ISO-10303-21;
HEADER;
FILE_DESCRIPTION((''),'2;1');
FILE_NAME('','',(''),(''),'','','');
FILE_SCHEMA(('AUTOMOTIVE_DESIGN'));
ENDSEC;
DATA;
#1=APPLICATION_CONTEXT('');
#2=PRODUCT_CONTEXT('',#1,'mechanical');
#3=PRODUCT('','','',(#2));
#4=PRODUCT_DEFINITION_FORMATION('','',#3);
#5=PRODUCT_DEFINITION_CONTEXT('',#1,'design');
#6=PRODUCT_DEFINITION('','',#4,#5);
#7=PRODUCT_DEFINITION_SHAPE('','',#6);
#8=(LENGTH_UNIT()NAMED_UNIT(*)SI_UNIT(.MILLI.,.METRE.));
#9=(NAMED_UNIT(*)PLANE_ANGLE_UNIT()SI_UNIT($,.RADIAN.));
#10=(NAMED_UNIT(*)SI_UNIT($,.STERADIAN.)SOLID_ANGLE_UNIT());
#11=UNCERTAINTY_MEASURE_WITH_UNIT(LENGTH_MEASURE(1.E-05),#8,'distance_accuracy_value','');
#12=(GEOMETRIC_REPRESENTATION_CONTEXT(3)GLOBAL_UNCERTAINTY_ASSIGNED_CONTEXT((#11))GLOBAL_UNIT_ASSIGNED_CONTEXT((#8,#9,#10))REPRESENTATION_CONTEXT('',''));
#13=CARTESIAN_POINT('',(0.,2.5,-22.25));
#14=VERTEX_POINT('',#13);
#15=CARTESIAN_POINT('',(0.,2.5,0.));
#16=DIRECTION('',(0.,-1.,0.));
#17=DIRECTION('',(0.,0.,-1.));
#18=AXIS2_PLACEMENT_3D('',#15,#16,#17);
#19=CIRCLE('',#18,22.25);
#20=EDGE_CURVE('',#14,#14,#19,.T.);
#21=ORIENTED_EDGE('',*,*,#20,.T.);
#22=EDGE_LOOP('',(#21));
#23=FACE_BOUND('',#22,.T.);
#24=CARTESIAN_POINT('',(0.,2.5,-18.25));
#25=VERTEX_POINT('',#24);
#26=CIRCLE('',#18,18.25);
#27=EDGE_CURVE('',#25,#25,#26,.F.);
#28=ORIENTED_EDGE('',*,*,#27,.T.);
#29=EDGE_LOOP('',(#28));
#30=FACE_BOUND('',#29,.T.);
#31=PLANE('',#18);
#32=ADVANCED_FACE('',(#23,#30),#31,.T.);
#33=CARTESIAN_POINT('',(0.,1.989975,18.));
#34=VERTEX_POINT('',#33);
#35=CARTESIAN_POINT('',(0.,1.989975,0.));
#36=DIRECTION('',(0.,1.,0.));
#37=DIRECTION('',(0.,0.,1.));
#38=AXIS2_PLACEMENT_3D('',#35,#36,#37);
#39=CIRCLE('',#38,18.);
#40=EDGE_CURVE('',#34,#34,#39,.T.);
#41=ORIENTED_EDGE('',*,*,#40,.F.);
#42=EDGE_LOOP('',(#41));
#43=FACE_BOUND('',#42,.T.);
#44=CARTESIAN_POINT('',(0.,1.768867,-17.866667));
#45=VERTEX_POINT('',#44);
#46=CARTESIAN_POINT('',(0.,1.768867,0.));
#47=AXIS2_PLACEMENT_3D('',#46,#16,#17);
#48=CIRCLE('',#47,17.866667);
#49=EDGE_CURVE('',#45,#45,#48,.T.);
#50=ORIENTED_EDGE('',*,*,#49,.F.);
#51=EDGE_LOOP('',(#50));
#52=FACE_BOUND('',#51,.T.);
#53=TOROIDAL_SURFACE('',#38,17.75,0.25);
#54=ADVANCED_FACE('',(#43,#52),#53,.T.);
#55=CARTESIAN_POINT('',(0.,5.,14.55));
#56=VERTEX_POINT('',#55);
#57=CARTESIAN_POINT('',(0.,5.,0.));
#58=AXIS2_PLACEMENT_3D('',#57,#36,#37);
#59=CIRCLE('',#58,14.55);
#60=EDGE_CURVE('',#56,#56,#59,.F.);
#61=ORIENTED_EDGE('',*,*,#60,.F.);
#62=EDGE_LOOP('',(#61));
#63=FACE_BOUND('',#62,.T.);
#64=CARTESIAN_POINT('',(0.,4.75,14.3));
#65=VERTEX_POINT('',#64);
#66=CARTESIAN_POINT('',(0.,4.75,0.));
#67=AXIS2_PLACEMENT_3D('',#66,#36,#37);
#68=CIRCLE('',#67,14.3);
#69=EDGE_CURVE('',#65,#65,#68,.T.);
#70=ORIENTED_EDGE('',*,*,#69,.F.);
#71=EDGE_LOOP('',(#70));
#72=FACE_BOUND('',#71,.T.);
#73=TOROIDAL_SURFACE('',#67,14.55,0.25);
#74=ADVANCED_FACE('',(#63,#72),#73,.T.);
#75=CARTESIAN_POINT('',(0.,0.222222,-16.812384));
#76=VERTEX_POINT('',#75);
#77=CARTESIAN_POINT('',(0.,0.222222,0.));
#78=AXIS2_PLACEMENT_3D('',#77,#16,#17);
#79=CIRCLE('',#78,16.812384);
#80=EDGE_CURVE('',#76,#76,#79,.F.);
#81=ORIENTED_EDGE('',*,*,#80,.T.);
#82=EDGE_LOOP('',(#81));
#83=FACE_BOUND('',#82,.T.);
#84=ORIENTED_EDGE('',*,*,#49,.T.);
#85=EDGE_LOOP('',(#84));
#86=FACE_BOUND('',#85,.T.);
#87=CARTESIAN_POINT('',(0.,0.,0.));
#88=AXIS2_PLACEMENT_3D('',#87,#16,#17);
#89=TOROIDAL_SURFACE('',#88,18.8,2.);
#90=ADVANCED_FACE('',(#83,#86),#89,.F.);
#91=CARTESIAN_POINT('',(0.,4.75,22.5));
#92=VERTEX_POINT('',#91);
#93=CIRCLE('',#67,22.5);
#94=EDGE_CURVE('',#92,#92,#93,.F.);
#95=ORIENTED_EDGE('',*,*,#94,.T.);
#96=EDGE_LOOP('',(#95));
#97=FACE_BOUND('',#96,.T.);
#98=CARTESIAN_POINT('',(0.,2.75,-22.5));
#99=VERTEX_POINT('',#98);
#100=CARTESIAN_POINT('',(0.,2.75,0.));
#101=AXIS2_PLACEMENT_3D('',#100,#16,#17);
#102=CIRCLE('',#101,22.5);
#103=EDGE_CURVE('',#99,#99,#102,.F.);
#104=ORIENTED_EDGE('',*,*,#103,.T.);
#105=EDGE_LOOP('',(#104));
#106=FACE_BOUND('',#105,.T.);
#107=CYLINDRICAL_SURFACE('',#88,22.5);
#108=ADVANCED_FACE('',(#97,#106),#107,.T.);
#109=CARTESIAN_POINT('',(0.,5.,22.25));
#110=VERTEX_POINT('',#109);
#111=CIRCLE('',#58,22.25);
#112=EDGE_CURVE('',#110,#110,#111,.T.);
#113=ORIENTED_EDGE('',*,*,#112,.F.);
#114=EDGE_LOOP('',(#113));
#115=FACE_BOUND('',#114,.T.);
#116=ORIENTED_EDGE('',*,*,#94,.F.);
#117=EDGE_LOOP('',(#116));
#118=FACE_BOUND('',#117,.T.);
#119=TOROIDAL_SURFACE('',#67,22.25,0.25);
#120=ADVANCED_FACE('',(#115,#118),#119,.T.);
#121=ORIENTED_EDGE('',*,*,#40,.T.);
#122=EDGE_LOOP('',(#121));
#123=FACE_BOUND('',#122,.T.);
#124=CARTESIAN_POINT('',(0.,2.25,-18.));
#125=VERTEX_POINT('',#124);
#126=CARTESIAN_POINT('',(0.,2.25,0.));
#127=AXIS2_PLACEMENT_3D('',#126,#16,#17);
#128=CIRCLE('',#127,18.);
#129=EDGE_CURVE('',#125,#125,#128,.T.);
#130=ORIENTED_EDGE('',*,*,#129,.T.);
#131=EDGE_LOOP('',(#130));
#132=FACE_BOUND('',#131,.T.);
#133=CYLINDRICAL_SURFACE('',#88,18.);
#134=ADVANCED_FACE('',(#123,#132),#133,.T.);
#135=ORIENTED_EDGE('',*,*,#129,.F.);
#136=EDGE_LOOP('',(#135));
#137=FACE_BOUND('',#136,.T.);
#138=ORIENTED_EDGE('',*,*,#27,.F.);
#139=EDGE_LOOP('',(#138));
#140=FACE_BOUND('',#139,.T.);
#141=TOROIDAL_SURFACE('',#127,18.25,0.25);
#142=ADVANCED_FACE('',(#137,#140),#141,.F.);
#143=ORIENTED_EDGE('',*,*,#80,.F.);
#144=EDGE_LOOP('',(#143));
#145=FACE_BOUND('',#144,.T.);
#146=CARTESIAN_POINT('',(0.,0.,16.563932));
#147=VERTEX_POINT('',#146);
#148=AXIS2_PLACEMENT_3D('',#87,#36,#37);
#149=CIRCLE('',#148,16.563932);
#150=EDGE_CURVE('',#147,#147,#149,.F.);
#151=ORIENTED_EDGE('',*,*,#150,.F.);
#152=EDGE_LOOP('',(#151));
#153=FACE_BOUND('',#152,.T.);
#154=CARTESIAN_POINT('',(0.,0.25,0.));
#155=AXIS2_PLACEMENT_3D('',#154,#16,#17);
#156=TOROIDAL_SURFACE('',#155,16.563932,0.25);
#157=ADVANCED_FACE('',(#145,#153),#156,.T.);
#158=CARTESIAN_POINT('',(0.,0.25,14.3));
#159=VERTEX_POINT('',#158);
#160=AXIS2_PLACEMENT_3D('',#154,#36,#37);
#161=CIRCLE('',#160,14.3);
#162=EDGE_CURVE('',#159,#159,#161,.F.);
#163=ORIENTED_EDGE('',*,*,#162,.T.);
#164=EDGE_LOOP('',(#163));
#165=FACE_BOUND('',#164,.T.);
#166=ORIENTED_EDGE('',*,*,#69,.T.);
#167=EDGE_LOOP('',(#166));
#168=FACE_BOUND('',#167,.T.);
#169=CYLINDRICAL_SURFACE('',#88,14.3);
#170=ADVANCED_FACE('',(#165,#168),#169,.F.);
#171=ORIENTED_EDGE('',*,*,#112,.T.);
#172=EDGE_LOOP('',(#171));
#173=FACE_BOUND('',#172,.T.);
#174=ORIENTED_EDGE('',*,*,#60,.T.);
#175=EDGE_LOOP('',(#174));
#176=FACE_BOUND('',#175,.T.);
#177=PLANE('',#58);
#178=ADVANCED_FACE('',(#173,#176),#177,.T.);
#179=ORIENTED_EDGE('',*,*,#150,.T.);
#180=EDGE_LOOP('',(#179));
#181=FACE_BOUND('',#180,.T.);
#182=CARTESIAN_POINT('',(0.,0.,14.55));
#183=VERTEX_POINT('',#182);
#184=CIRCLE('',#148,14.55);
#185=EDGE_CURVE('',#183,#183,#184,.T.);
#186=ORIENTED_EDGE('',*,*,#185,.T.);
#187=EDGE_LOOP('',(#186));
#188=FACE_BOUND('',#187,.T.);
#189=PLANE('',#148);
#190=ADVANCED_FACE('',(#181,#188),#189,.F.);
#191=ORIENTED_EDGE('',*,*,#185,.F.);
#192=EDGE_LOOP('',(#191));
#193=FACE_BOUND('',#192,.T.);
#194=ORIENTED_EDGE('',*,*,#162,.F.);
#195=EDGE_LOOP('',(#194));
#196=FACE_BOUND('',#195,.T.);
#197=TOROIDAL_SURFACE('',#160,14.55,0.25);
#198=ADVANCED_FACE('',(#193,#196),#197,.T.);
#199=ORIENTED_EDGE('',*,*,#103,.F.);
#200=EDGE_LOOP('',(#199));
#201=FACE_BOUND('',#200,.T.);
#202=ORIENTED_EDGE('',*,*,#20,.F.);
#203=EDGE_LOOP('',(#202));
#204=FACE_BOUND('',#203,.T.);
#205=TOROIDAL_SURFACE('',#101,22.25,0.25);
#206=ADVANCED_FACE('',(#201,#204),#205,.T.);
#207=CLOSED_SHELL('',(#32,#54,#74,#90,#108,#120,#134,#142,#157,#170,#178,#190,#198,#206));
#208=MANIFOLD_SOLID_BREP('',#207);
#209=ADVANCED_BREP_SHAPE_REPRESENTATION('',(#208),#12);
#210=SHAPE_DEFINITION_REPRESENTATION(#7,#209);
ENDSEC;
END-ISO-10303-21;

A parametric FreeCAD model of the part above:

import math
import FreeCAD as App
import Part
import Sketcher

V = App.Vector


def edges_at(feature, points):
    """Names of the edges that pass closest to the given points."""
    edges = feature.Shape.Edges
    near = lambda p: min(range(len(edges)), key=lambda i: edges[i].distToShape(Part.Vertex(*p))[0])
    return sorted({f"Edge{near(p) + 1}" for p in points})

doc = App.newDocument("Part")
body = doc.addObject("PartDesign::Body", "Body")

# Sketch on XY plane
sketch1 = body.newObject("Sketcher::SketchObject", "Sketch")
sketch1.AttachmentSupport = (doc.getObject("XY_Plane"), [""])
sketch1.MapMode = "FlatFace"
sketch1.addGeometry(Part.LineSegment(V(14.3, 0, 0), V(16.8, 0, 0)), False)
sketch1.addGeometry(Part.ArcOfCircle(Part.Circle(V(18.8, 0, 0), V(0, 0, 1), 2), math.radians(113.578178), math.radians(180)), False)
sketch1.addGeometry(Part.LineSegment(V(18, 1.83303, 0), V(18, 2.5, 0)), False)
sketch1.addGeometry(Part.LineSegment(V(18, 2.5, 0), V(22.5, 2.5, 0)), False)
sketch1.addGeometry(Part.LineSegment(V(22.5, 2.5, 0), V(22.5, 5, 0)), False)
sketch1.addGeometry(Part.LineSegment(V(22.5, 5, 0), V(14.3, 5, 0)), False)
sketch1.addGeometry(Part.LineSegment(V(14.3, 5, 0), V(14.3, 0, 0)), False)
sketch1.addConstraint(Sketcher.Constraint("Coincident", 0, 2, 1, 2))
sketch1.addConstraint(Sketcher.Constraint("Coincident", 1, 1, 2, 1))
sketch1.addConstraint(Sketcher.Constraint("Coincident", 2, 2, 3, 1))
sketch1.addConstraint(Sketcher.Constraint("Coincident", 3, 2, 4, 1))
sketch1.addConstraint(Sketcher.Constraint("Coincident", 4, 2, 5, 1))
sketch1.addConstraint(Sketcher.Constraint("Coincident", 5, 2, 6, 1))
sketch1.addConstraint(Sketcher.Constraint("Coincident", 6, 2, 0, 1))
sketch1.addConstraint(Sketcher.Constraint("Horizontal", 0))
sketch1.addConstraint(Sketcher.Constraint("Vertical", 2))
sketch1.addConstraint(Sketcher.Constraint("Horizontal", 3))
sketch1.addConstraint(Sketcher.Constraint("Vertical", 4))
sketch1.addConstraint(Sketcher.Constraint("Horizontal", 5))
sketch1.addConstraint(Sketcher.Constraint("Vertical", 6))
sketch1.addConstraint(Sketcher.Constraint("PointOnObject", 1, 3, -1))
sketch1.addConstraint(Sketcher.Constraint("PointOnObject", 0, 2, -1))
sketch1.addConstraint(Sketcher.Constraint("Equal", 0, 4))
sketch1.addConstraint(Sketcher.Constraint("Radius", 1, 2.0))
sketch1.addConstraint(Sketcher.Constraint("DistanceY", 6, 2, 6, 1, 5.0))
sketch1.addConstraint(Sketcher.Constraint("DistanceX", 0, 1, 0, 2, 2.5))
sketch1.addConstraint(Sketcher.Constraint("DistanceX", 3, 1, 3, 2, 4.5))
sketch1.addConstraint(Sketcher.Constraint("DistanceX", 5, 2, 5, 1, 8.2))
sketch1.addConstraint(Sketcher.Constraint("DistanceX", -1, 1, 1, 1, 18.0))
revolution = body.newObject("PartDesign::Revolution", "Revolution")
revolution.Profile = sketch1
revolution.ReferenceAxis = (sketch1, ["V_Axis"])
revolution.Angle = 360
doc.recompute()

fillet = body.newObject("PartDesign::Fillet", "Fillet")
fillet.Base = (revolution, edges_at(revolution, [
    (0, 2.5, 18),
    (0, 1.833, 18),
    (0, 0, 16.8),
    (0, 0, 14.3),
    (0, 5, 14.3),
    (0, 5, 22.5),
    (0, 2.5, 22.5),
]))
fillet.Radius = 0.25

doc.recompute()
